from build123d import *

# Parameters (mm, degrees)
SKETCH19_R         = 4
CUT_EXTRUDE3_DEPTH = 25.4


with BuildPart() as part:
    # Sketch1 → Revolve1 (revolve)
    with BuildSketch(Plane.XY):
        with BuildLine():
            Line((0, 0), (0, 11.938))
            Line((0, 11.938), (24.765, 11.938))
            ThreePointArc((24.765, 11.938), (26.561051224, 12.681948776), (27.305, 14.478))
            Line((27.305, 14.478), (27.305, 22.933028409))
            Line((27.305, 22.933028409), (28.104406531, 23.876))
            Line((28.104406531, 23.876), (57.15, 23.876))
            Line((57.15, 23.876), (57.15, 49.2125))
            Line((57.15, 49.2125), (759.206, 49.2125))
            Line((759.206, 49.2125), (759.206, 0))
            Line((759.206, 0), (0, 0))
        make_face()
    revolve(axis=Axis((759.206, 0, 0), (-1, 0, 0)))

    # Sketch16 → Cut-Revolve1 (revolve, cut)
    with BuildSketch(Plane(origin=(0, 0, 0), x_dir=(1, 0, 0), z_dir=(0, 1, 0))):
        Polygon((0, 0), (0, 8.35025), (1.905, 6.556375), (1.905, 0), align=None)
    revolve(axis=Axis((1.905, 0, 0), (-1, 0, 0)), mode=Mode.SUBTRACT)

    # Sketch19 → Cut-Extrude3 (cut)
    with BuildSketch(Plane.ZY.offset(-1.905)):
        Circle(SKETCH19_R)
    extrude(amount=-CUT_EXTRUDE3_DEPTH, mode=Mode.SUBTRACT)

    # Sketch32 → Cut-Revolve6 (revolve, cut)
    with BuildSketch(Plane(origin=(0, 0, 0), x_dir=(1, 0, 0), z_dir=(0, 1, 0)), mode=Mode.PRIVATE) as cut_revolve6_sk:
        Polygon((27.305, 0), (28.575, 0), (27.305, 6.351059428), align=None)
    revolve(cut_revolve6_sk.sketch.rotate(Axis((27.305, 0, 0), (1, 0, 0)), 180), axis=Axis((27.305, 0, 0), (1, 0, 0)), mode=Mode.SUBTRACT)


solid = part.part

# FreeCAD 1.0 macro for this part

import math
import FreeCAD as App
import Part
import Sketcher

V = App.Vector
Q = App.Units.Quantity


def add_polygon(sketch, points):
    """Adds a closed chain of lines whose ends are joined by coincident constraints."""
    first, n = sketch.GeometryCount, len(points)
    for a, b in zip(points, points[1:] + points[:1]):
        sketch.addGeometry(Part.LineSegment(App.Vector(*a, 0), App.Vector(*b, 0)), False)
    for i in range(n):
        sketch.addConstraint(Sketcher.Constraint("Coincident", first + i, 2, first + (i + 1) % n, 1))

doc = App.newDocument("Part")
body = doc.addObject("PartDesign::Body", "Body")

# Sketch on XY plane
sketch1 = body.newObject("Sketcher::SketchObject", "Sketch")
sketch1.AttachmentSupport = (doc.getObject("XY_Plane"), [""])
sketch1.MapMode = "FlatFace"
sketch1.addGeometry([
    Part.LineSegment(V(0, 11.9, 0), V(0, 0, 0)),  # 0
    Part.LineSegment(V(0, 0, 0), V(759.2, 0, 0)),  # 1
    Part.LineSegment(V(759.2, 0, 0), V(759.2, 49.2, 0)),  # 2
    Part.LineSegment(V(759.2, 49.2, 0), V(57.1, 49.2, 0)),  # 3
    Part.LineSegment(V(57.1, 49.2, 0), V(57.1, 23.9, 0)),  # 4
    Part.LineSegment(V(57.1, 23.9, 0), V(28.1, 23.9, 0)),  # 5
    Part.LineSegment(V(28.1, 23.9, 0), V(27.3, 22.9, 0)),  # 6
    Part.LineSegment(V(27.3, 22.9, 0), V(27.3, 14.5, 0)),  # 7
    Part.ArcOfCircle(Part.Circle(V(24.8, 14.5, 0), V(0, 0, 1), 2.5), math.radians(-90), math.radians(0)),  # 8
    Part.LineSegment(V(24.8, 11.9, 0), V(0, 11.9, 0)),  # 9
], False)
sketch1.addConstraint([
    Sketcher.Constraint("Coincident", 0, 2, 1, 1),
    Sketcher.Constraint("Coincident", 1, 2, 2, 1),
    Sketcher.Constraint("Coincident", 2, 2, 3, 1),
    Sketcher.Constraint("Coincident", 3, 2, 4, 1),
    Sketcher.Constraint("Coincident", 4, 2, 5, 1),
    Sketcher.Constraint("Coincident", 5, 2, 6, 1),
    Sketcher.Constraint("Coincident", 6, 2, 7, 1),
    Sketcher.Constraint("Tangent", 7, 2, 8, 2),
    Sketcher.Constraint("Tangent", 8, 1, 9, 1),
    Sketcher.Constraint("Coincident", 9, 2, 0, 1),
    Sketcher.Constraint("Vertical", 0),
    Sketcher.Constraint("Horizontal", 1),
    Sketcher.Constraint("Vertical", 2),
    Sketcher.Constraint("Horizontal", 3),
    Sketcher.Constraint("Vertical", 4),
    Sketcher.Constraint("Horizontal", 5),
    Sketcher.Constraint("Vertical", 7),
    Sketcher.Constraint("Horizontal", 9),
    Sketcher.Constraint("Coincident", 0, 2, -1, 1),
    Sketcher.Constraint("Radius", 8, Q("0.1 in")),
    Sketcher.Constraint("DistanceX", 1, 1, 1, 2, Q("29.89 in")),
    Sketcher.Constraint("DistanceX", 3, 2, 3, 1, Q("27.64 in")),
    Sketcher.Constraint("DistanceY", 0, 2, 0, 1, Q("0.47 in")),
    Sketcher.Constraint("DistanceX", 9, 2, 9, 1, Q("0.975 in")),
    Sketcher.Constraint("DistanceY", 2, 1, 2, 2, Q("1.9375 in")),
    Sketcher.Constraint("DistanceY", -1, 1, 4, 2, Q("0.94 in")),
    Sketcher.Constraint("DistanceY", 7, 2, 7, 1, Q("8.455028 mm")),
    Sketcher.Constraint("DistanceX", 5, 2, 5, 1, Q("29.045593 mm")),
])
revolution = body.newObject("PartDesign::Revolution", "Revolution")
revolution.Profile = sketch1
revolution.ReferenceAxis = (sketch1, ["H_Axis"])
revolution.Angle = 360

# Sketch on XZ plane
sketch2 = body.newObject("Sketcher::SketchObject", "Sketch001")
sketch2.AttachmentSupport = (doc.getObject("XZ_Plane"), [""])
sketch2.MapMode = "FlatFace"
add_polygon(sketch2, [(0, -8.4), (0, 0), (1.9, 0), (1.9, -6.6)])  # lines 0-3
sketch2.addConstraint([
    Sketcher.Constraint("Vertical", 0),
    Sketcher.Constraint("Horizontal", 1),
    Sketcher.Constraint("Vertical", 2),
    Sketcher.Constraint("Coincident", 0, 2, -1, 1),
    Sketcher.Constraint("DistanceX", 1, 1, 1, 2, Q("0.075 in")),
    Sketcher.Constraint("DistanceY", 0, 1, 0, 2, Q("8.35025 mm")),
    Sketcher.Constraint("Distance", 3, Q("2.61668 mm")),
])
groove = body.newObject("PartDesign::Groove", "Groove")
groove.Profile = sketch2
groove.ReferenceAxis = (sketch2, ["H_Axis"])
groove.Angle = 360

# Sketch on YZ plane
sketch3 = body.newObject("Sketcher::SketchObject", "Sketch002")
sketch3.AttachmentSupport = (doc.getObject("YZ_Plane"), [""])
sketch3.MapMode = "FlatFace"
sketch3.AttachmentOffset = App.Placement(V(0, 0, 0.075 * 25.4), App.Rotation())
sketch3.addGeometry(Part.Circle(V(0, 0, 0), V(0, 0, 1), 4), False)
sketch3.addConstraint([
    Sketcher.Constraint("Coincident", 0, 3, -1, 1),
    Sketcher.Constraint("Diameter", 0, Q("8 mm")),
])
pocket1 = body.newObject("PartDesign::Pocket", "Pocket")
pocket1.Profile = sketch3
pocket1.Length = Q("1 in")
pocket1.Reversed = True

# Sketch on XZ plane
sketch4 = body.newObject("Sketcher::SketchObject", "Sketch003")
sketch4.AttachmentSupport = (doc.getObject("XZ_Plane"), [""])
sketch4.MapMode = "FlatFace"
add_polygon(sketch4, [(27.3, 0), (28.6, 0), (27.3, -6.4)])  # lines 0-2
sketch4.addConstraint([
    Sketcher.Constraint("Horizontal", 0),
    Sketcher.Constraint("Vertical", 2),
    Sketcher.Constraint("PointOnObject", 0, 2, -1),
    Sketcher.Constraint("DistanceX", 0, 1, 0, 2, Q("0.05 in")),
    Sketcher.Constraint("DistanceX", -1, 1, 0, 2, Q("1.125 in")),
    Sketcher.Constraint("DistanceY", 2, 1, 2, 2, Q("6.351059 mm")),
])
groove2 = body.newObject("PartDesign::Groove", "Groove001")
groove2.Profile = sketch4
groove2.ReferenceAxis = (sketch4, ["H_Axis"])
groove2.Angle = 360

doc.recompute()
